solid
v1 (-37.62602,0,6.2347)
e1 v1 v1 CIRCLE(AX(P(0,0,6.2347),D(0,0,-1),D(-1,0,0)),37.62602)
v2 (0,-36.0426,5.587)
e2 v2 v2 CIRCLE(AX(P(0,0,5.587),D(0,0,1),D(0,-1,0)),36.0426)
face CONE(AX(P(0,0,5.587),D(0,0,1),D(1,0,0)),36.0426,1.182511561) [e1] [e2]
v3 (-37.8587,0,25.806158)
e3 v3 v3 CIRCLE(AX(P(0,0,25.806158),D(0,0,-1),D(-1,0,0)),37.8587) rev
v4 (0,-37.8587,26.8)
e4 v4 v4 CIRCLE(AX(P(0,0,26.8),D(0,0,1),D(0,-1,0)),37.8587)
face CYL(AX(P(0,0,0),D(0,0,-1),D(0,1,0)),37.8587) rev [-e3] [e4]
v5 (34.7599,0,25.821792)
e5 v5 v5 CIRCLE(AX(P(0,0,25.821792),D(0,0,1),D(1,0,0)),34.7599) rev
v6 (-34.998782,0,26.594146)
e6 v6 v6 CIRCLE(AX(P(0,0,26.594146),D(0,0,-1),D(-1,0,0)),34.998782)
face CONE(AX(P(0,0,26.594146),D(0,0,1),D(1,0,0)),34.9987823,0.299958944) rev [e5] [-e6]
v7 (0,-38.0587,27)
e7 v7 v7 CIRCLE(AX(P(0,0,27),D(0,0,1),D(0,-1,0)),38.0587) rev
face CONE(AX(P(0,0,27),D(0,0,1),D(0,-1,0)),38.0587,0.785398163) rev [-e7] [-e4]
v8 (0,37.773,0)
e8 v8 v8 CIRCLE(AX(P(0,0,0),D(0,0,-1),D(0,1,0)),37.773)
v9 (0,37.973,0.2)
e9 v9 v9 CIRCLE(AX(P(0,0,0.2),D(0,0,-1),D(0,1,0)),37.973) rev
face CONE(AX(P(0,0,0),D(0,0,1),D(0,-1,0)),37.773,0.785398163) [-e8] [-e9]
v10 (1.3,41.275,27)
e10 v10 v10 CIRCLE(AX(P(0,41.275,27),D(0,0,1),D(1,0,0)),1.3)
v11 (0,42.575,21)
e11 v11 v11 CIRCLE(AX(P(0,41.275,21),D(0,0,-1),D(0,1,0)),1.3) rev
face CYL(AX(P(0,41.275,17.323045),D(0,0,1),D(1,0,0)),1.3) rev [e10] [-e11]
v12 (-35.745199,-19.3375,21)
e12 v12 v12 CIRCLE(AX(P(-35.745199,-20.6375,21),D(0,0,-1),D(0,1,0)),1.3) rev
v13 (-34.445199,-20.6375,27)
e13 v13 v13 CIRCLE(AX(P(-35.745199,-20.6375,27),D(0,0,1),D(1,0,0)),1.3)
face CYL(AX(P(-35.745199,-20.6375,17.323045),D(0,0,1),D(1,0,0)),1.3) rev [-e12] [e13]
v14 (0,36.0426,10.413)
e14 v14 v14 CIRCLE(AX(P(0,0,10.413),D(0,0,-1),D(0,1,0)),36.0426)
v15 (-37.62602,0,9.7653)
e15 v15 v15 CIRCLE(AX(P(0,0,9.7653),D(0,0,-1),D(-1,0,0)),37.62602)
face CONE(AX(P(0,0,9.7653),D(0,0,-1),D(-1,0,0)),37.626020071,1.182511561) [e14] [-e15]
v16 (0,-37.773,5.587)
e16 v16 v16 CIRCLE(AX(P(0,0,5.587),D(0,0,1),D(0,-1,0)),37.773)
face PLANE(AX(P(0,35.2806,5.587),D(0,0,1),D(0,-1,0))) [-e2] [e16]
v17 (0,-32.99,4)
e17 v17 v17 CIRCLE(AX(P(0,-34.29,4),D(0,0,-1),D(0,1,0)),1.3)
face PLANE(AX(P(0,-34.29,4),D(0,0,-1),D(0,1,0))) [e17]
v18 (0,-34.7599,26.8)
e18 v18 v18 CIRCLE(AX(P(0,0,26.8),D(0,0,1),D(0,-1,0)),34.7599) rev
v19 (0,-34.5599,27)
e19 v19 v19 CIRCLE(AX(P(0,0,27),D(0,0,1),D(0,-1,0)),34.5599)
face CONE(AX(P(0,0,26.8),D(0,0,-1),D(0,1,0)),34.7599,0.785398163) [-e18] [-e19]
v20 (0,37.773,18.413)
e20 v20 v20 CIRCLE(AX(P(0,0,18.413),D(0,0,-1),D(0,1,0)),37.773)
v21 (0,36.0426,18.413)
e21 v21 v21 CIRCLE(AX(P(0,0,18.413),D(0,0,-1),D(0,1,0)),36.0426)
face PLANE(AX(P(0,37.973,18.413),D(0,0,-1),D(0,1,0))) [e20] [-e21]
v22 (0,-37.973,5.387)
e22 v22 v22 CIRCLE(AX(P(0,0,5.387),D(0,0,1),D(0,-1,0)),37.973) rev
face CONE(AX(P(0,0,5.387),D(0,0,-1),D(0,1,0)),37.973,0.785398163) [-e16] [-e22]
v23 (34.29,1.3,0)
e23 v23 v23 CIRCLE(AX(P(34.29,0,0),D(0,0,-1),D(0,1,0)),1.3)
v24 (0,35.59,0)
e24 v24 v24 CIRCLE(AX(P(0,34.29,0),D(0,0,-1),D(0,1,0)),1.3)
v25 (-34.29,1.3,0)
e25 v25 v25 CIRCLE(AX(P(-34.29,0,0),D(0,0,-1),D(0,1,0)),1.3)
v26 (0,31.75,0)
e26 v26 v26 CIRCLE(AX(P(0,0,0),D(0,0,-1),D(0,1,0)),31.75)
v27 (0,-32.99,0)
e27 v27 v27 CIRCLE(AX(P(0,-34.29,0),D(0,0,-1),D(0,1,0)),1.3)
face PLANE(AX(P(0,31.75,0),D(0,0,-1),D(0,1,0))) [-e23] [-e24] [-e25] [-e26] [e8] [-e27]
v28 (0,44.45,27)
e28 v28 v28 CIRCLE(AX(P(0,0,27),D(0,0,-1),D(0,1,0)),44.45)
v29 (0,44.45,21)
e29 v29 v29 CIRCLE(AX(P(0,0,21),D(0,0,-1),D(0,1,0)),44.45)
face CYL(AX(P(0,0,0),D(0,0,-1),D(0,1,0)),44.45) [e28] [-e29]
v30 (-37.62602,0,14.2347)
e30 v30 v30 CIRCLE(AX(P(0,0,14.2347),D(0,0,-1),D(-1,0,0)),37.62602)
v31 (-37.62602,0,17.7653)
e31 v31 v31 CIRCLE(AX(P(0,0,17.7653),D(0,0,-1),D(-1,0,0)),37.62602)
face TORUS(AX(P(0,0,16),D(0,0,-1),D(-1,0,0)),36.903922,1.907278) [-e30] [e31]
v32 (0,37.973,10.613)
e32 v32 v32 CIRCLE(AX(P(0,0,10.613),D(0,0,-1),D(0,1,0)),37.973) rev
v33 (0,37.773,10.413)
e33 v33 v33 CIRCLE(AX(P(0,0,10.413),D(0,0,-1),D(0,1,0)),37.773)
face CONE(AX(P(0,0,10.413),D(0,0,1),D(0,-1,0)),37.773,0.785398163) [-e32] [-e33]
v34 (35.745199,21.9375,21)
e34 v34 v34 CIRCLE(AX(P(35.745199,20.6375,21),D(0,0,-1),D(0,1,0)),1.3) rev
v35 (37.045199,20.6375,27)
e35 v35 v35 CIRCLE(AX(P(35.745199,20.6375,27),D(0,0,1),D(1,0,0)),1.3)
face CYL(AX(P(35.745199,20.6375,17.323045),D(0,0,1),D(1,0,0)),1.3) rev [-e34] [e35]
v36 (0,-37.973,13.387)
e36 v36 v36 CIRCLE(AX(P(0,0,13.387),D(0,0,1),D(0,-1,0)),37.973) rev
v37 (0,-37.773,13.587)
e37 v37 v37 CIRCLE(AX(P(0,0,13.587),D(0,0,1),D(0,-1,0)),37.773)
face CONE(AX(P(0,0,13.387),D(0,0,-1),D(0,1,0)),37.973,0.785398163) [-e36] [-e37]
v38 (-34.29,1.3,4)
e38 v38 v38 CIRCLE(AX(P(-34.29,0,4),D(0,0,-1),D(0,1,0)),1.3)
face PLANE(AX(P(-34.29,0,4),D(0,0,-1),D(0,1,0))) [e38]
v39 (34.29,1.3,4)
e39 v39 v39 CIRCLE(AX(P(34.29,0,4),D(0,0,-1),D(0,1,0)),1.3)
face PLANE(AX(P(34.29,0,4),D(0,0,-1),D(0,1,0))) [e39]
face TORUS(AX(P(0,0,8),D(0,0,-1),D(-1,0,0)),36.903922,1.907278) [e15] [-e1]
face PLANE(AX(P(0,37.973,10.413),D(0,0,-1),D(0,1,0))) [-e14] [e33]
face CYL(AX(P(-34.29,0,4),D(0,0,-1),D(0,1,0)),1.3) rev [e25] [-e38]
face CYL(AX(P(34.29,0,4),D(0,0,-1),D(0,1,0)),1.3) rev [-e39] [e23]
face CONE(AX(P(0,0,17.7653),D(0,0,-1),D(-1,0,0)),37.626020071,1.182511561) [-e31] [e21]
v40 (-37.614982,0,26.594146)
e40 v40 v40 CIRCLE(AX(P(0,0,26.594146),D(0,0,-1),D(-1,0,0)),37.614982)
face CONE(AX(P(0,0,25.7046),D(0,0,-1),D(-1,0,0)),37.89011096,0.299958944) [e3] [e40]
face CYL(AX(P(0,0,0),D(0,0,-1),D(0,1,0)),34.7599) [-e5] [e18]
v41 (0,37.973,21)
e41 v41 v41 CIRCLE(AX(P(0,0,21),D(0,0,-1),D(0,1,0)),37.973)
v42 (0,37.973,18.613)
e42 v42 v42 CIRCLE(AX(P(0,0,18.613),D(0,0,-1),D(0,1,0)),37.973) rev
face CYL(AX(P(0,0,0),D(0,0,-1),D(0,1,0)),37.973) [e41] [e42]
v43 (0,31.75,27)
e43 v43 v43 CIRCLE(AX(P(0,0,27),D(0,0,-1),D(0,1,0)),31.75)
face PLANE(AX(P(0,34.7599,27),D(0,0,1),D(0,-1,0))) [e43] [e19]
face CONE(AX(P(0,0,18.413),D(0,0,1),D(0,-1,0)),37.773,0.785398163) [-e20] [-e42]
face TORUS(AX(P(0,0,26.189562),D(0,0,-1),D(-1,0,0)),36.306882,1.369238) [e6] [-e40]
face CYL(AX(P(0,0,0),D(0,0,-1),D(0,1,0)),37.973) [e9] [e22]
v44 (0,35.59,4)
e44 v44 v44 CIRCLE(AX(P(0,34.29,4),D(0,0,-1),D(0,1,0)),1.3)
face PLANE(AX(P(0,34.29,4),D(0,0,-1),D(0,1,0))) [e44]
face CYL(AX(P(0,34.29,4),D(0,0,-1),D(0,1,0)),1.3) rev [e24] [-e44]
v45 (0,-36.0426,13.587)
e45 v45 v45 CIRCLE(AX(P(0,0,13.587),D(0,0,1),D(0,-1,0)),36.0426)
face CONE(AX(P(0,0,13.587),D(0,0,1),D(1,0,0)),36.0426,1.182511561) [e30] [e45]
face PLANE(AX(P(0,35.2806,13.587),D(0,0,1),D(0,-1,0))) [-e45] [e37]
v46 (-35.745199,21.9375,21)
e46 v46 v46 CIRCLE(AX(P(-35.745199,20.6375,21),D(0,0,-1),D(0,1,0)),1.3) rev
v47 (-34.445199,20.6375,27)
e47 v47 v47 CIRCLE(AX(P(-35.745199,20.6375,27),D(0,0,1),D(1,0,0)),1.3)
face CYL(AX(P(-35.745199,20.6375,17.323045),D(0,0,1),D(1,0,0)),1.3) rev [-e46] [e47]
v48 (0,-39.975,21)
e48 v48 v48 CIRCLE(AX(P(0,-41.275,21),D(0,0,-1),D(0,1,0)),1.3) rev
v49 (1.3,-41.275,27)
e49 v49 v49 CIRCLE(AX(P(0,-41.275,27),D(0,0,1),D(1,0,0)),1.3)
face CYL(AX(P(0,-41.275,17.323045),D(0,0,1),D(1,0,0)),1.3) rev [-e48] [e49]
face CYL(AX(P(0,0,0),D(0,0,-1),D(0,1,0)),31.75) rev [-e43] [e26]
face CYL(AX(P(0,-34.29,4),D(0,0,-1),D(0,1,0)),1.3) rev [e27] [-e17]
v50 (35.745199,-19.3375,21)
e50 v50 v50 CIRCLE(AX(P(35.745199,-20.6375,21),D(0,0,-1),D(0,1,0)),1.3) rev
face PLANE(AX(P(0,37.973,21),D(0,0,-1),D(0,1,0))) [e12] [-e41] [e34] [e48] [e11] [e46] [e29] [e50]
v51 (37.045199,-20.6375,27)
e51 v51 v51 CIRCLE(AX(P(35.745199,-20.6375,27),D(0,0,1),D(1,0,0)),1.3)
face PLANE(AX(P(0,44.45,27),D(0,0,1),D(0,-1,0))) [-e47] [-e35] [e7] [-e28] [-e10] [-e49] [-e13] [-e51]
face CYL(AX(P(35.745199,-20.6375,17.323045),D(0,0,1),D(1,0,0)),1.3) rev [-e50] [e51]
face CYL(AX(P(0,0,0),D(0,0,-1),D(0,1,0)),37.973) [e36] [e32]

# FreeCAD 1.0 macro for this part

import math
import FreeCAD as App
import Part
import Sketcher
from FreeCAD import Vector
Q = App.Units.Quantity


def edges_at(feature, points):
    """Names of the edges that pass closest to the given points."""
    edges = feature.Shape.Edges
    near = lambda p: min(range(len(edges)), key=lambda i: edges[i].distToShape(Part.Vertex(*p))[0])
    return sorted({f"Edge{near(p) + 1}" for p in points})

doc = App.newDocument("Part")
body = doc.addObject("PartDesign::Body", "Body")

# Sketch on YZ plane
sketch1 = body.newObject("Sketcher::SketchObject", "Sketch")
sketch1.AttachmentSupport = (doc.getObject("YZ_Plane"), [""])
sketch1.MapMode = "FlatFace"
sketch1.addGeometry([
    Part.LineSegment(Vector(38, 0, 0), Vector(38, 5.6, 0)),  # 0
    Part.LineSegment(Vector(38, 5.6, 0), Vector(35.3, 5.6, 0)),  # 1
    Part.LineSegment(Vector(35.3, 5.6, 0), Vector(35.3, 10.4, 0)),  # 2
    Part.LineSegment(Vector(35.3, 10.4, 0), Vector(38, 10.4, 0)),  # 3
    Part.LineSegment(Vector(38, 10.4, 0), Vector(38, 13.6, 0)),  # 4
    Part.LineSegment(Vector(38, 13.6, 0), Vector(35.3, 13.6, 0)),  # 5
    Part.LineSegment(Vector(35.3, 13.6, 0), Vector(35.3, 18.4, 0)),  # 6
    Part.LineSegment(Vector(35.3, 18.4, 0), Vector(38, 18.4, 0)),  # 7
    Part.LineSegment(Vector(38, 18.4, 0), Vector(38, 21, 0)),  # 8
    Part.LineSegment(Vector(38, 21, 0), Vector(44.5, 21, 0)),  # 9
    Part.LineSegment(Vector(44.5, 21, 0), Vector(44.5, 27, 0)),  # 10
    Part.LineSegment(Vector(44.5, 27, 0), Vector(37.9, 27, 0)),  # 11
    Part.LineSegment(Vector(37.9, 27, 0), Vector(37.9, 24.9, 0)),  # 12
    Part.LineSegment(Vector(37.9, 24.9, 0), Vector(34.8, 24.9, 0)),  # 13
    Part.LineSegment(Vector(34.8, 24.9, 0), Vector(34.8, 27, 0)),  # 14
    Part.LineSegment(Vector(34.8, 27, 0), Vector(31.8, 27, 0)),  # 15
    Part.LineSegment(Vector(31.8, 27, 0), Vector(31.8, 0, 0)),  # 16
    Part.LineSegment(Vector(31.8, 0, 0), Vector(38, 0, 0)),  # 17
], False)
sketch1.addConstraint([
    Sketcher.Constraint("Coincident", 0, 2, 1, 1),
    Sketcher.Constraint("Coincident", 1, 2, 2, 1),
    Sketcher.Constraint("Coincident", 2, 2, 3, 1),
    Sketcher.Constraint("Coincident", 3, 2, 4, 1),
    Sketcher.Constraint("Coincident", 4, 2, 5, 1),
    Sketcher.Constraint("Coincident", 5, 2, 6, 1),
    Sketcher.Constraint("Coincident", 6, 2, 7, 1),
    Sketcher.Constraint("Coincident", 7, 2, 8, 1),
    Sketcher.Constraint("Coincident", 8, 2, 9, 1),
    Sketcher.Constraint("Coincident", 9, 2, 10, 1),
    Sketcher.Constraint("Coincident", 10, 2, 11, 1),
    Sketcher.Constraint("Coincident", 11, 2, 12, 1),
    Sketcher.Constraint("Coincident", 12, 2, 13, 1),
    Sketcher.Constraint("Coincident", 13, 2, 14, 1),
    Sketcher.Constraint("Coincident", 14, 2, 15, 1),
    Sketcher.Constraint("Coincident", 15, 2, 16, 1),
    Sketcher.Constraint("Coincident", 16, 2, 17, 1),
    Sketcher.Constraint("Coincident", 17, 2, 0, 1),
    Sketcher.Constraint("Vertical", 0),
    Sketcher.Constraint("Horizontal", 1),
    Sketcher.Constraint("Vertical", 2),
    Sketcher.Constraint("Horizontal", 3),
    Sketcher.Constraint("Vertical", 4),
    Sketcher.Constraint("Horizontal", 5),
    Sketcher.Constraint("Vertical", 6),
    Sketcher.Constraint("Horizontal", 7),
    Sketcher.Constraint("Vertical", 8),
    Sketcher.Constraint("Horizontal", 9),
    Sketcher.Constraint("Vertical", 10),
    Sketcher.Constraint("Horizontal", 11),
    Sketcher.Constraint("Vertical", 12),
    Sketcher.Constraint("Horizontal", 13),
    Sketcher.Constraint("Vertical", 14),
    Sketcher.Constraint("Horizontal", 15),
    Sketcher.Constraint("Vertical", 16),
    Sketcher.Constraint("Horizontal", 17),
    Sketcher.Constraint("PointOnObject", 16, 2, -1),
    Sketcher.Constraint("Horizontal", 11, 2, 14, 2),
    Sketcher.Constraint("Vertical", 0, 2, 3, 2),
    Sketcher.Constraint("Vertical", 2, 2, 5, 2),
    Sketcher.Constraint("Vertical", 4, 2, 7, 2),
    Sketcher.Constraint("Equal", 2, 6),
    Sketcher.Constraint("DistanceY", 2, 1, 2, 2, Q("0.19 in")),
    Sketcher.Constraint("DistanceX", 1, 2, 1, 1, Q("0.106 in")),
    Sketcher.Constraint("DistanceX", 9, 1, 9, 2, Q("0.255 in")),
    Sketcher.Constraint("DistanceX", 13, 2, 13, 1, Q("0.122 in")),
    Sketcher.Constraint("DistanceX", 17, 1, 17, 2, Q("0.245 in")),
    Sketcher.Constraint("DistanceY", 12, 2, 12, 1, Q("0.081 in")),
    Sketcher.Constraint("DistanceX", -1, 1, 9, 2, Q("1.75 in")),
    Sketcher.Constraint("DistanceX", 11, 2, 11, 1, Q("0.2595 in")),
    Sketcher.Constraint("DistanceY", 0, 1, 0, 2, 5.587),
    Sketcher.Constraint("DistanceY", 4, 1, 4, 2, 3.174),
    Sketcher.Constraint("DistanceY", 8, 1, 8, 2, 2.587),
    Sketcher.Constraint("DistanceY", 10, 1, 10, 2, 6.0),
])
revolution = body.newObject("PartDesign::Revolution", "Revolution")
revolution.Profile = sketch1
revolution.ReferenceAxis = (sketch1, ["V_Axis"])
revolution.Angle = 360

# Sketch on XY plane
sketch2 = body.newObject("Sketcher::SketchObject", "Sketch001")
sketch2.AttachmentSupport = (doc.getObject("XY_Plane"), [""])
sketch2.MapMode = "FlatFace"
sketch2.AttachmentOffset = App.Placement(Vector(0, 0, 27), App.Rotation())
sketch2.addGeometry([
    Part.Circle(Vector(0, 41.3, 0), Vector(0, 0, 1), 1.3),  # 0
    Part.Circle(Vector(35.7, 20.6, 0), Vector(0, 0, 1), 1.3),  # 1
    Part.Circle(Vector(35.7, -20.6, 0), Vector(0, 0, 1), 1.3),  # 2
    Part.Circle(Vector(0, -41.3, 0), Vector(0, 0, 1), 1.3),  # 3
    Part.Circle(Vector(-35.7, -20.6, 0), Vector(0, 0, 1), 1.3),  # 4
    Part.Circle(Vector(-35.7, 20.6, 0), Vector(0, 0, 1), 1.3),  # 5
], False)
sketch2.addConstraint([
    Sketcher.Constraint("Equal", 0, 1),
    Sketcher.Constraint("Equal", 1, 2),
    Sketcher.Constraint("Equal", 2, 3),
    Sketcher.Constraint("Equal", 3, 4),
    Sketcher.Constraint("Equal", 4, 5),
    Sketcher.Constraint("Symmetric", 0, 3, 3, 3, -1, 1),
    Sketcher.Constraint("Symmetric", 1, 3, 4, 3, -1, 1),
    Sketcher.Constraint("Symmetric", 2, 3, 5, 3, -1, 1),
    Sketcher.Constraint("Symmetric", 2, 3, 4, 3, -2),
    Sketcher.Constraint("PointOnObject", 0, 3, -2),
    Sketcher.Constraint("Diameter", 0, 2.6),
    Sketcher.Constraint("DistanceY", 3, 3, 0, 3, Q("3.25 in")),
    Sketcher.Constraint("DistanceY", -1, 1, 1, 3, Q("0.8125 in")),
    Sketcher.Constraint("DistanceX", -1, 1, 1, 3, 35.745199),
])
pocket1 = body.newObject("PartDesign::Pocket", "Pocket")
pocket1.Profile = sketch2
pocket1.Length = 6
doc.recompute()

chamfer = body.newObject("PartDesign::Chamfer", "Chamfer")
chamfer.Base = (pocket1, edges_at(pocket1, [
    (0, -34.76, 27),
    (0, -37.859, 27),
    (0, -37.973, 18.413),
    (0, -37.973, 13.587),
    (0, -37.973, 10.413),
    (0, -37.973, 5.587),
    (0, -37.973, 0),
]))
chamfer.Size = 0.2

# Sketch on XY plane
sketch3 = body.newObject("Sketcher::SketchObject", "Sketch002")
sketch3.AttachmentSupport = (doc.getObject("XY_Plane"), [""])
sketch3.MapMode = "FlatFace"
sketch3.addGeometry([
    Part.Circle(Vector(34.3, 0, 0), Vector(0, 0, 1), 1.3),
    Part.Circle(Vector(0, 34.3, 0), Vector(0, 0, 1), 1.3),
    Part.Circle(Vector(-34.3, 0, 0), Vector(0, 0, 1), 1.3),
    Part.Circle(Vector(0, -34.3, 0), Vector(0, 0, 1), 1.3),
], False)
sketch3.addConstraint([
    Sketcher.Constraint("Equal", 0, 1),
    Sketcher.Constraint("Equal", 1, 2),
    Sketcher.Constraint("Equal", 2, 3),
    Sketcher.Constraint("Symmetric", 0, 3, 2, 3, -1, 1),
    Sketcher.Constraint("Symmetric", 1, 3, 3, 3, -1, 1),
    Sketcher.Constraint("PointOnObject", 0, 3, -1),
    Sketcher.Constraint("PointOnObject", 1, 3, -2),
    Sketcher.Constraint("DistanceX", 2, 3, 0, 3, Q("2.7 in")),
    Sketcher.Constraint("DistanceY", 3, 3, 1, 3, Q("2.7 in")),
    Sketcher.Constraint("Diameter", 0, 2.6),
])
pocket2 = body.newObject("PartDesign::Pocket", "Pocket001")
pocket2.Profile = sketch3
pocket2.Length = 4
pocket2.Reversed = True

# Sketch on YZ plane
sketch4 = body.newObject("Sketcher::SketchObject", "Sketch003")
sketch4.AttachmentSupport = (doc.getObject("YZ_Plane"), [""])
sketch4.MapMode = "FlatFace"
sketch4.addGeometry([
    Part.LineSegment(Vector(36, 13.6, 0), Vector(37.6, 14.2, 0)),  # 0
    Part.ArcOfCircle(Part.Circle(Vector(36.9, 16, 0), Vector(0, 0, 1), 1.9), math.radians(-68), math.radians(68)),  # 1
    Part.LineSegment(Vector(37.6, 17.8, 0), Vector(36, 18.4, 0)),  # 2
    Part.LineSegment(Vector(36, 18.4, 0), Vector(35.3, 18.4, 0)),  # 3
    Part.LineSegment(Vector(35.3, 18.4, 0), Vector(35.3, 13.6, 0)),  # 4
    Part.LineSegment(Vector(35.3, 13.6, 0), Vector(36, 13.6, 0)),  # 5
    Part.LineSegment(Vector(36, 5.6, 0), Vector(37.6, 6.2, 0)),  # 6
    Part.ArcOfCircle(Part.Circle(Vector(36.9, 8, 0), Vector(0, 0, 1), 1.9), math.radians(-68), math.radians(68)),  # 7
    Part.LineSegment(Vector(37.6, 9.8, 0), Vector(36, 10.4, 0)),  # 8
    Part.LineSegment(Vector(36, 10.4, 0), Vector(35.3, 10.4, 0)),  # 9
    Part.LineSegment(Vector(35.3, 10.4, 0), Vector(35.3, 5.6, 0)),  # 10
    Part.LineSegment(Vector(35.3, 5.6, 0), Vector(36, 5.6, 0)),  # 11
    Part.LineSegment(Vector(37.9, 24.9, 0), Vector(37.9, 25.7, 0)),  # 12
    Part.LineSegment(Vector(37.9, 25.7, 0), Vector(37.6, 26.6, 0)),  # 13
    Part.ArcOfCircle(Part.Circle(Vector(36.3, 26.2, 0), Vector(0, 0, 1), 1.4), math.radians(17), math.radians(163)),  # 14
    Part.LineSegment(Vector(35, 26.6, 0), Vector(34.7, 25.7, 0)),  # 15
    Part.LineSegment(Vector(34.7, 25.7, 0), Vector(34.7, 24.9, 0)),  # 16
    Part.LineSegment(Vector(34.7, 24.9, 0), Vector(37.9, 24.9, 0)),  # 17
], False)
sketch4.addConstraint([
    Sketcher.Constraint("Tangent", 0, 2, 1, 1),
    Sketcher.Constraint("Tangent", 1, 2, 2, 1),
    Sketcher.Constraint("Coincident", 2, 2, 3, 1),
    Sketcher.Constraint("Coincident", 3, 2, 4, 1),
    Sketcher.Constraint("Coincident", 4, 2, 5, 1),
    Sketcher.Constraint("Coincident", 5, 2, 0, 1),
    Sketcher.Constraint("Tangent", 6, 2, 7, 1),
    Sketcher.Constraint("Tangent", 7, 2, 8, 1),
    Sketcher.Constraint("Coincident", 8, 2, 9, 1),
    Sketcher.Constraint("Coincident", 9, 2, 10, 1),
    Sketcher.Constraint("Coincident", 10, 2, 11, 1),
    Sketcher.Constraint("Coincident", 11, 2, 6, 1),
    Sketcher.Constraint("Coincident", 12, 2, 13, 1),
    Sketcher.Constraint("Tangent", 13, 2, 14, 1),
    Sketcher.Constraint("Tangent", 14, 2, 15, 1),
    Sketcher.Constraint("Coincident", 15, 2, 16, 1),
    Sketcher.Constraint("Coincident", 16, 2, 17, 1),
    Sketcher.Constraint("Coincident", 17, 2, 12, 1),
    Sketcher.Constraint("Horizontal", 3),
    Sketcher.Constraint("Vertical", 4),
    Sketcher.Constraint("Horizontal", 5),
    Sketcher.Constraint("Horizontal", 9),
    Sketcher.Constraint("Vertical", 10),
    Sketcher.Constraint("Horizontal", 11),
    Sketcher.Constraint("Vertical", 12),
    Sketcher.Constraint("Vertical", 16),
    Sketcher.Constraint("Horizontal", 17),
    Sketcher.Constraint("Equal", 1, 7),
    Sketcher.Constraint("Parallel", 0, 6),
    Sketcher.Constraint("Parallel", 2, 8),
    Sketcher.Constraint("Horizontal", 13, 2, 14, 2),
    Sketcher.Constraint("Horizontal", 12, 2, 15, 2),
    Sketcher.Constraint("Vertical", 1, 3, 7, 3),
    Sketcher.Constraint("Vertical", 0, 2, 1, 2),
    Sketcher.Constraint("Vertical", 2, 2, 5, 2),
    Sketcher.Constraint("Vertical", 5, 2, 8, 2),
    Sketcher.Constraint("Vertical", 4, 2, 9, 2),
    Sketcher.Constraint("Vertical", 8, 2, 11, 2),
    Sketcher.Constraint("Equal", 11, 12),
    Sketcher.Constraint("DistanceX", 3, 2, 3, 1, Q("0.03 in")),
    Sketcher.Constraint("DistanceY", 4, 2, 4, 1, Q("0.19 in")),
    Sketcher.Constraint("DistanceX", -1, 1, 2, 2, Q("1.419 in")),
    Sketcher.Constraint("Radius", 1, 1.907278),
    Sketcher.Constraint("Radius", 14, 1.369238),
    Sketcher.Constraint("DistanceY", 0, 2, 1, 2, Q("0.139 in")),
    Sketcher.Constraint("DistanceX", 14, 2, 13, 2, Q("0.103 in")),
    Sketcher.Constraint("DistanceY", -1, 1, 1, 3, 16.0),
    Sketcher.Constraint("DistanceY", -1, 1, 7, 3, 8.0),
    Sketcher.Constraint("DistanceY", -1, 1, 12, 2, 25.7046),
    Sketcher.Constraint("Distance", 13, 0.931121),
    Sketcher.Constraint("DistanceX", -1, 1, 12, 2, 37.890111),
])
revolution2 = body.newObject("PartDesign::Revolution", "Revolution001")
revolution2.Profile = sketch4
revolution2.ReferenceAxis = (sketch4, ["V_Axis"])
revolution2.Angle = 360

doc.recompute()
